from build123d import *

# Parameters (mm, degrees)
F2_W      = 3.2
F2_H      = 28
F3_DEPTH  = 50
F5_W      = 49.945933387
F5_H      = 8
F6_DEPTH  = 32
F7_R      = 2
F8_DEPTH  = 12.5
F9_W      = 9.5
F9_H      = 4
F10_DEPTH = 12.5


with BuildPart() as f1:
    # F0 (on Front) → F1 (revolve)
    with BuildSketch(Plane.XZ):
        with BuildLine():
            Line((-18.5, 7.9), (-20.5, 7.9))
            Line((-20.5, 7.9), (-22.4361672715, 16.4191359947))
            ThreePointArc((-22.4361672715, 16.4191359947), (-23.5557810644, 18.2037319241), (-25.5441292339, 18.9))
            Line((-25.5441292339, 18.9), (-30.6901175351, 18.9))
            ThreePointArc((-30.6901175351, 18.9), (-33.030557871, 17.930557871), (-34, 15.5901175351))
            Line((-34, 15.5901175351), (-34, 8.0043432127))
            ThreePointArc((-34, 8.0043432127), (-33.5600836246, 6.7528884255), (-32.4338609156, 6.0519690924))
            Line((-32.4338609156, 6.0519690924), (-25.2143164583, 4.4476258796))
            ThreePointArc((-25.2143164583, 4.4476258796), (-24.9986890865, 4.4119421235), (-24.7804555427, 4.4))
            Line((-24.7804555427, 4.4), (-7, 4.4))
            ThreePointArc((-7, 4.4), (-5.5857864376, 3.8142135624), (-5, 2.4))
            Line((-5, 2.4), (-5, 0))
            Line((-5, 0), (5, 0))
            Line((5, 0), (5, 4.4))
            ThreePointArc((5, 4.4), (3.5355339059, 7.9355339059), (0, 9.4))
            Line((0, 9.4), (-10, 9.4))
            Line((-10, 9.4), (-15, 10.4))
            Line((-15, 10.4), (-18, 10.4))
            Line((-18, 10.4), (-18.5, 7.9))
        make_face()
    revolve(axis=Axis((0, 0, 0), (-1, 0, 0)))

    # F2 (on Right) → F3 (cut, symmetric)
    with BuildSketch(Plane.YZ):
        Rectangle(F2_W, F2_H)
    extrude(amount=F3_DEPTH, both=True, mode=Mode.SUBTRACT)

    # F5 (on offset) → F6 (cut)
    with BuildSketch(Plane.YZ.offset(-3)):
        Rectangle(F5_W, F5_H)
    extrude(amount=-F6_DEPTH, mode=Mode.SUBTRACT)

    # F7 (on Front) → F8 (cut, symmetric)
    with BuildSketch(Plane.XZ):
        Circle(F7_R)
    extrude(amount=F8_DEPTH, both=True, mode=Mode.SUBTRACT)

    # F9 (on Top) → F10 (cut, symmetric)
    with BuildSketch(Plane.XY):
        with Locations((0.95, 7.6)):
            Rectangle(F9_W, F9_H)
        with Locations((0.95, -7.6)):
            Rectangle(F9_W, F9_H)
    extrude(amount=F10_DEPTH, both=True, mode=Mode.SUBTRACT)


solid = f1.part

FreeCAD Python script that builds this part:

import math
import FreeCAD as App
import Part
import Sketcher

doc = App.newDocument("Part")
body = doc.addObject("PartDesign::Body", "Body")

# Sketch on XZ plane
sketch1 = doc.addObject("Sketcher::SketchObject", "Sketch")
body.addObject(sketch1)
sketch1.AttachmentSupport = (doc.XZ_Plane, [""])
sketch1.MapMode = "FlatFace"
sketch1.addGeometry([
    Part.LineSegment(App.Vector(-18.5, 7.9, 0), App.Vector(-20.5, 7.9, 0)),  # 0
    Part.LineSegment(App.Vector(-20.5, 7.9, 0), App.Vector(-22.44, 16.42, 0)),  # 1
    Part.ArcOfCircle(Part.Circle(App.Vector(-25.54, 15.71, 0), App.Vector(0, 0, 1), 3.19), math.radians(13), math.radians(90)),  # 2
    Part.LineSegment(App.Vector(-25.54, 18.9, 0), App.Vector(-30.69, 18.9, 0)),  # 3
    Part.ArcOfCircle(Part.Circle(App.Vector(-30.69, 15.59, 0), App.Vector(0, 0, 1), 3.31), math.radians(90), math.radians(180)),  # 4
    Part.LineSegment(App.Vector(-34, 15.59, 0), App.Vector(-34, 8, 0)),  # 5
    Part.ArcOfCircle(Part.Circle(App.Vector(-32, 8, 0), App.Vector(0, 0, 1), 2), math.radians(180), math.radians(257)),  # 6
    Part.LineSegment(App.Vector(-32.43, 6.05, 0), App.Vector(-25.21, 4.45, 0)),  # 7
    Part.ArcOfCircle(Part.Circle(App.Vector(-24.78, 6.4, 0), App.Vector(0, 0, 1), 2), math.radians(-102.53), math.radians(-90)),  # 8
    Part.LineSegment(App.Vector(-24.78, 4.4, 0), App.Vector(-7, 4.4, 0)),  # 9
    Part.ArcOfCircle(Part.Circle(App.Vector(-7, 2.4, 0), App.Vector(0, 0, 1), 2), math.radians(0), math.radians(90)),  # 10
    Part.LineSegment(App.Vector(-5, 2.4, 0), App.Vector(-5, 0, 0)),  # 11
    Part.LineSegment(App.Vector(-5, 0, 0), App.Vector(5, 0, 0)),  # 12
    Part.LineSegment(App.Vector(5, 0, 0), App.Vector(5, 4.4, 0)),  # 13
    Part.ArcOfCircle(Part.Circle(App.Vector(0, 4.4, 0), App.Vector(0, 0, 1), 5), math.radians(0), math.radians(90)),  # 14
    Part.LineSegment(App.Vector(0, 9.4, 0), App.Vector(-10, 9.4, 0)),  # 15
    Part.LineSegment(App.Vector(-10, 9.4, 0), App.Vector(-15, 10.4, 0)),  # 16
    Part.LineSegment(App.Vector(-15, 10.4, 0), App.Vector(-18, 10.4, 0)),  # 17
    Part.LineSegment(App.Vector(-18, 10.4, 0), App.Vector(-18.5, 7.9, 0)),  # 18
], False)
sketch1.addConstraint([
    Sketcher.Constraint("Coincident", 0, 2, 1, 1),
    Sketcher.Constraint("Tangent", 1, 2, 2, 1),
    Sketcher.Constraint("Tangent", 2, 2, 3, 1),
    Sketcher.Constraint("Tangent", 3, 2, 4, 1),
    Sketcher.Constraint("Tangent", 4, 2, 5, 1),
    Sketcher.Constraint("Tangent", 5, 2, 6, 1),
    Sketcher.Constraint("Tangent", 6, 2, 7, 1),
    Sketcher.Constraint("Tangent", 7, 2, 8, 1),
    Sketcher.Constraint("Tangent", 8, 2, 9, 1),
    Sketcher.Constraint("Tangent", 9, 2, 10, 2),
    Sketcher.Constraint("Tangent", 10, 1, 11, 1),
    Sketcher.Constraint("Coincident", 11, 2, 12, 1),
    Sketcher.Constraint("Coincident", 12, 2, 13, 1),
    Sketcher.Constraint("Tangent", 13, 2, 14, 1),
    Sketcher.Constraint("Tangent", 14, 2, 15, 1),
    Sketcher.Constraint("Coincident", 15, 2, 16, 1),
    Sketcher.Constraint("Coincident", 16, 2, 17, 1),
    Sketcher.Constraint("Coincident", 17, 2, 18, 1),
    Sketcher.Constraint("Coincident", 18, 2, 0, 1),
    Sketcher.Constraint("Horizontal", 0),
    Sketcher.Constraint("Horizontal", 3),
    Sketcher.Constraint("Vertical", 5),
    Sketcher.Constraint("Horizontal", 9),
    Sketcher.Constraint("Vertical", 11),
    Sketcher.Constraint("Horizontal", 12),
    Sketcher.Constraint("Vertical", 13),
    Sketcher.Constraint("Horizontal", 15),
    Sketcher.Constraint("Horizontal", 17),
    Sketcher.Constraint("Equal", 6, 8),
    Sketcher.Constraint("Equal", 8, 10),
    Sketcher.Constraint("Symmetric", 11, 2, 12, 2, -1, 1),
    Sketcher.Constraint("PointOnObject", 14, 3, -2),
    Sketcher.Constraint("Perpendicular", 16, 18),
    Sketcher.Constraint("Horizontal", 14, 3, 8, 2),
    Sketcher.Constraint("Equal", 12, 15),
    Sketcher.Constraint("Radius", 6, 2.0),
    Sketcher.Constraint("Radius", 14, 5.0),
    Sketcher.Constraint("DistanceX", 0, 2, 0, 1, 2.0),
    Sketcher.Constraint("DistanceX", 17, 2, 17, 1, 3.0),
    Sketcher.Constraint("DistanceY", 11, 2, 11, 1, 2.4),
    Sketcher.Constraint("DistanceX", 6, 3, -1, 1, 32.0),
    Sketcher.Constraint("DistanceX", 16, 2, -1, 1, 15.0),
    Sketcher.Constraint("DistanceY", 0, 2, 2, 2, 11.0),
    Sketcher.Constraint("DistanceY", 15, 2, 16, 2, 1.0),
    Sketcher.Constraint("DistanceX", 0, 2, -1, 1, 20.5),
    Sketcher.Constraint("Radius", 2, 3.187219),
    Sketcher.Constraint("Radius", 4, 3.309882),
    Sketcher.Constraint("DistanceX", 3, 2, 3, 1, 5.145988),
    Sketcher.Constraint("DistanceX", 9, 1, 9, 2, 17.780456),
    Sketcher.Constraint("DistanceY", 5, 2, 5, 1, 7.585774),
])
revolution = doc.addObject("PartDesign::Revolution", "Revolution")
body.addObject(revolution)
revolution.Profile = sketch1
revolution.ReferenceAxis = (sketch1, ["H_Axis"])
revolution.Angle = 360

# Sketch on YZ plane
sketch2 = doc.addObject("Sketcher::SketchObject", "Sketch001")
body.addObject(sketch2)
sketch2.AttachmentSupport = (doc.YZ_Plane, [""])
sketch2.MapMode = "FlatFace"
sketch2.addGeometry([
    Part.LineSegment(App.Vector(-1.6, 14, 0), App.Vector(-1.6, -14, 0)),
    Part.LineSegment(App.Vector(-1.6, -14, 0), App.Vector(1.6, -14, 0)),
    Part.LineSegment(App.Vector(1.6, -14, 0), App.Vector(1.6, 14, 0)),
    Part.LineSegment(App.Vector(1.6, 14, 0), App.Vector(-1.6, 14, 0)),
], False)
sketch2.addConstraint([
    Sketcher.Constraint("Coincident", 0, 2, 1, 1),
    Sketcher.Constraint("Coincident", 1, 2, 2, 1),
    Sketcher.Constraint("Coincident", 2, 2, 3, 1),
    Sketcher.Constraint("Coincident", 3, 2, 0, 1),
    Sketcher.Constraint("Vertical", 0),
    Sketcher.Constraint("Horizontal", 1),
    Sketcher.Constraint("Vertical", 2),
    Sketcher.Constraint("Horizontal", 3),
    Sketcher.Constraint("Symmetric", 0, 2, 2, 2, -1, 1),
    Sketcher.Constraint("DistanceY", 0, 2, 0, 1, 28.0),
    Sketcher.Constraint("DistanceX", 1, 1, 1, 2, 3.2),
])
pocket1 = doc.addObject("PartDesign::Pocket", "Pocket")
body.addObject(pocket1)
pocket1.Profile = sketch2
pocket1.Length = 100
pocket1.Midplane = True

# Sketch on YZ plane
sketch3 = doc.addObject("Sketcher::SketchObject", "Sketch002")
body.addObject(sketch3)
sketch3.AttachmentSupport = (doc.YZ_Plane, [""])
sketch3.MapMode = "FlatFace"
sketch3.AttachmentOffset = App.Placement(App.Vector(0, 0, -3), App.Rotation())
sketch3.addGeometry([
    Part.LineSegment(App.Vector(-25, 4, 0), App.Vector(-25, -4, 0)),
    Part.LineSegment(App.Vector(-25, -4, 0), App.Vector(25, -4, 0)),
    Part.LineSegment(App.Vector(25, -4, 0), App.Vector(25, 4, 0)),
    Part.LineSegment(App.Vector(25, 4, 0), App.Vector(-25, 4, 0)),
], False)
sketch3.addConstraint([
    Sketcher.Constraint("Coincident", 0, 2, 1, 1),
    Sketcher.Constraint("Coincident", 1, 2, 2, 1),
    Sketcher.Constraint("Coincident", 2, 2, 3, 1),
    Sketcher.Constraint("Coincident", 3, 2, 0, 1),
    Sketcher.Constraint("Vertical", 0),
    Sketcher.Constraint("Horizontal", 1),
    Sketcher.Constraint("Vertical", 2),
    Sketcher.Constraint("Horizontal", 3),
    Sketcher.Constraint("Symmetric", 0, 2, 2, 2, -1, 1),
    Sketcher.Constraint("DistanceY", 0, 2, 0, 1, 8.0),
    Sketcher.Constraint("DistanceX", 1, 1, 1, 2, 49.945933),
])
pocket2 = doc.addObject("PartDesign::Pocket", "Pocket001")
body.addObject(pocket2)
pocket2.Profile = sketch3
pocket2.Length = 32

# Sketch on XZ plane
sketch4 = doc.addObject("Sketcher::SketchObject", "Sketch003")
body.addObject(sketch4)
sketch4.AttachmentSupport = (doc.XZ_Plane, [""])
sketch4.MapMode = "FlatFace"
sketch4.addGeometry(Part.Circle(App.Vector(0, 0, 0), App.Vector(0, 0, 1), 2), False)
sketch4.addConstraint([
    Sketcher.Constraint("Coincident", 0, 3, -1, 1),
    Sketcher.Constraint("Diameter", 0, 4.0),
])
pocket3 = doc.addObject("PartDesign::Pocket", "Pocket002")
body.addObject(pocket3)
pocket3.Profile = sketch4
pocket3.Length = 25
pocket3.Midplane = True

# Sketch on XY plane
sketch5 = doc.addObject("Sketcher::SketchObject", "Sketch004")
body.addObject(sketch5)
sketch5.AttachmentSupport = (doc.XY_Plane, [""])
sketch5.MapMode = "FlatFace"
sketch5.addGeometry([
    Part.LineSegment(App.Vector(-3.8, 9.6, 0), App.Vector(-3.8, 5.6, 0)),  # 0
    Part.LineSegment(App.Vector(-3.8, 5.6, 0), App.Vector(5.7, 5.6, 0)),  # 1
    Part.LineSegment(App.Vector(5.7, 5.6, 0), App.Vector(5.7, 9.6, 0)),  # 2
    Part.LineSegment(App.Vector(5.7, 9.6, 0), App.Vector(-3.8, 9.6, 0)),  # 3
    Part.LineSegment(App.Vector(-3.8, -5.6, 0), App.Vector(-3.8, -9.6, 0)),  # 4
    Part.LineSegment(App.Vector(-3.8, -9.6, 0), App.Vector(5.7, -9.6, 0)),  # 5
    Part.LineSegment(App.Vector(5.7, -9.6, 0), App.Vector(5.7, -5.6, 0)),  # 6
    Part.LineSegment(App.Vector(5.7, -5.6, 0), App.Vector(-3.8, -5.6, 0)),  # 7
], False)
sketch5.addConstraint([
    Sketcher.Constraint("Coincident", 0, 2, 1, 1),
    Sketcher.Constraint("Coincident", 1, 2, 2, 1),
    Sketcher.Constraint("Coincident", 2, 2, 3, 1),
    Sketcher.Constraint("Coincident", 3, 2, 0, 1),
    Sketcher.Constraint("Coincident", 4, 2, 5, 1),
    Sketcher.Constraint("Coincident", 5, 2, 6, 1),
    Sketcher.Constraint("Coincident", 6, 2, 7, 1),
    Sketcher.Constraint("Coincident", 7, 2, 4, 1),
    Sketcher.Constraint("Vertical", 0),
    Sketcher.Constraint("Horizontal", 1),
    Sketcher.Constraint("Vertical", 2),
    Sketcher.Constraint("Horizontal", 3),
    Sketcher.Constraint("Vertical", 4),
    Sketcher.Constraint("Horizontal", 5),
    Sketcher.Constraint("Vertical", 6),
    Sketcher.Constraint("Horizontal", 7),
    Sketcher.Constraint("Symmetric", 3, 2, 4, 2, -1),
    Sketcher.Constraint("Symmetric", 1, 2, 6, 2, -1),
    Sketcher.Constraint("DistanceY", 0, 2, 0, 1, 4.0),
    Sketcher.Constraint("DistanceX", 1, 1, 1, 2, 9.5),
    Sketcher.Constraint("DistanceX", 0, 2, -1, 1, 3.8),
    Sketcher.Constraint("DistanceY", -1, 1, 0, 2, 5.6),
])
pocket4 = doc.addObject("PartDesign::Pocket", "Pocket003")
body.addObject(pocket4)
pocket4.Profile = sketch5
pocket4.Length = 25
pocket4.Midplane = True

doc.recompute()
